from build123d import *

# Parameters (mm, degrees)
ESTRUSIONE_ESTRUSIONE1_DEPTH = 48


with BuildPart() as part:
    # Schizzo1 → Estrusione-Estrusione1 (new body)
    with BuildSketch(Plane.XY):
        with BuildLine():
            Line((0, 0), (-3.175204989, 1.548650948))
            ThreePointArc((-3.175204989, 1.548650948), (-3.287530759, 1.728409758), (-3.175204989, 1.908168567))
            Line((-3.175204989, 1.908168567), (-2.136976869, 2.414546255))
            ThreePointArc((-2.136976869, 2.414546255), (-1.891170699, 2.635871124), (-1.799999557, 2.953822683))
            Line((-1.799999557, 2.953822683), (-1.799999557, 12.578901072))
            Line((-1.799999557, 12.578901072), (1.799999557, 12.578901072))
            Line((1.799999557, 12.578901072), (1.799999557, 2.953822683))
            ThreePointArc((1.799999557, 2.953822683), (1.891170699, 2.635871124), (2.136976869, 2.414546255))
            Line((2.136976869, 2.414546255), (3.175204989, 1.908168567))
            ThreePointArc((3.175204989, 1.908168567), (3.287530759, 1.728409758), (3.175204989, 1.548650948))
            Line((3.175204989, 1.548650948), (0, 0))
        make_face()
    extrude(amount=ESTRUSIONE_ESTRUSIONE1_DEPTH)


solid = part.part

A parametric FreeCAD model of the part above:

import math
import FreeCAD as App
import Part
import Sketcher
Q = App.Units.Quantity

doc = App.newDocument("Part")
body = doc.addObject("PartDesign::Body", "Body")

sketch1 = body.newObject("Sketcher::SketchObject", "Sketch")
sketch1.AttachmentSupport = (doc.getObject("XY_Plane"), [""])
sketch1.MapMode = "FlatFace"
sketch1.addGeometry(Part.LineSegment(App.Vector(-3.18, 1.55, 0), App.Vector(0, 0, 0)), False)
sketch1.addGeometry(Part.LineSegment(App.Vector(0, 0, 0), App.Vector(3.18, 1.55, 0)), False)
sketch1.addGeometry(Part.ArcOfCircle(Part.Circle(App.Vector(3.09, 1.73, 0), App.Vector(0, 0, 1), 0.2), math.radians(-64), math.radians(64)), False)
sketch1.addGeometry(Part.LineSegment(App.Vector(3.18, 1.91, 0), App.Vector(2.14, 2.41, 0)), False)
sketch1.addGeometry(Part.ArcOfCircle(Part.Circle(App.Vector(2.4, 2.95, 0), App.Vector(0, 0, 1), 0.6), math.radians(180), math.radians(244)), False)
sketch1.addGeometry(Part.LineSegment(App.Vector(1.8, 2.95, 0), App.Vector(1.8, 12.58, 0)), False)
sketch1.addGeometry(Part.LineSegment(App.Vector(1.8, 12.58, 0), App.Vector(-1.8, 12.58, 0)), False)
sketch1.addGeometry(Part.LineSegment(App.Vector(-1.8, 12.58, 0), App.Vector(-1.8, 2.95, 0)), False)
sketch1.addGeometry(Part.ArcOfCircle(Part.Circle(App.Vector(-2.4, 2.95, 0), App.Vector(0, 0, 1), 0.6), math.radians(-64), math.radians(0)), False)
sketch1.addGeometry(Part.LineSegment(App.Vector(-2.14, 2.41, 0), App.Vector(-3.18, 1.91, 0)), False)
sketch1.addGeometry(Part.ArcOfCircle(Part.Circle(App.Vector(-3.09, 1.73, 0), App.Vector(0, 0, 1), 0.2), math.radians(116), math.radians(244)), False)
sketch1.addConstraint(Sketcher.Constraint("Coincident", 0, 2, 1, 1))
sketch1.addConstraint(Sketcher.Constraint("Tangent", 1, 2, 2, 1))
sketch1.addConstraint(Sketcher.Constraint("Tangent", 2, 2, 3, 1))
sketch1.addConstraint(Sketcher.Constraint("Tangent", 3, 2, 4, 2))
sketch1.addConstraint(Sketcher.Constraint("Tangent", 4, 1, 5, 1))
sketch1.addConstraint(Sketcher.Constraint("Coincident", 5, 2, 6, 1))
sketch1.addConstraint(Sketcher.Constraint("Coincident", 6, 2, 7, 1))
sketch1.addConstraint(Sketcher.Constraint("Tangent", 7, 2, 8, 2))
sketch1.addConstraint(Sketcher.Constraint("Tangent", 8, 1, 9, 1))
sketch1.addConstraint(Sketcher.Constraint("Tangent", 9, 2, 10, 1))
sketch1.addConstraint(Sketcher.Constraint("Tangent", 10, 2, 0, 1))
sketch1.addConstraint(Sketcher.Constraint("Vertical", 5))
sketch1.addConstraint(Sketcher.Constraint("Horizontal", 6))
sketch1.addConstraint(Sketcher.Constraint("Vertical", 7))
sketch1.addConstraint(Sketcher.Constraint("Coincident", 0, 2, -1, 1))
sketch1.addConstraint(Sketcher.Constraint("Equal", 4, 8))
sketch1.addConstraint(Sketcher.Constraint("Equal", 2, 10))
sketch1.addConstraint(Sketcher.Constraint("Symmetric", 4, 3, 8, 3, -2))
sketch1.addConstraint(Sketcher.Constraint("Symmetric", 2, 3, 10, 3, -2))
sketch1.addConstraint(Sketcher.Constraint("Parallel", 0, 3))
sketch1.addConstraint(Sketcher.Constraint("Radius", 2, Q("0.2 mm")))
sketch1.addConstraint(Sketcher.Constraint("Radius", 4, Q("0.6 mm")))
sketch1.addConstraint(Sketcher.Constraint("Angle", 0, Q("-26 deg")))
sketch1.addConstraint(Sketcher.Constraint("DistanceX", 6, 2, 6, 1, Q("3.599999 mm")))
sketch1.addConstraint(Sketcher.Constraint("DistanceY", 5, 1, 5, 2, Q("9.625078 mm")))
sketch1.addConstraint(Sketcher.Constraint("DistanceY", -1, 1, 5, 2, Q("12.578901 mm")))
pad1 = body.newObject("PartDesign::Pad", "Pad")
pad1.Profile = sketch1
pad1.Length = 48

doc.recompute()
